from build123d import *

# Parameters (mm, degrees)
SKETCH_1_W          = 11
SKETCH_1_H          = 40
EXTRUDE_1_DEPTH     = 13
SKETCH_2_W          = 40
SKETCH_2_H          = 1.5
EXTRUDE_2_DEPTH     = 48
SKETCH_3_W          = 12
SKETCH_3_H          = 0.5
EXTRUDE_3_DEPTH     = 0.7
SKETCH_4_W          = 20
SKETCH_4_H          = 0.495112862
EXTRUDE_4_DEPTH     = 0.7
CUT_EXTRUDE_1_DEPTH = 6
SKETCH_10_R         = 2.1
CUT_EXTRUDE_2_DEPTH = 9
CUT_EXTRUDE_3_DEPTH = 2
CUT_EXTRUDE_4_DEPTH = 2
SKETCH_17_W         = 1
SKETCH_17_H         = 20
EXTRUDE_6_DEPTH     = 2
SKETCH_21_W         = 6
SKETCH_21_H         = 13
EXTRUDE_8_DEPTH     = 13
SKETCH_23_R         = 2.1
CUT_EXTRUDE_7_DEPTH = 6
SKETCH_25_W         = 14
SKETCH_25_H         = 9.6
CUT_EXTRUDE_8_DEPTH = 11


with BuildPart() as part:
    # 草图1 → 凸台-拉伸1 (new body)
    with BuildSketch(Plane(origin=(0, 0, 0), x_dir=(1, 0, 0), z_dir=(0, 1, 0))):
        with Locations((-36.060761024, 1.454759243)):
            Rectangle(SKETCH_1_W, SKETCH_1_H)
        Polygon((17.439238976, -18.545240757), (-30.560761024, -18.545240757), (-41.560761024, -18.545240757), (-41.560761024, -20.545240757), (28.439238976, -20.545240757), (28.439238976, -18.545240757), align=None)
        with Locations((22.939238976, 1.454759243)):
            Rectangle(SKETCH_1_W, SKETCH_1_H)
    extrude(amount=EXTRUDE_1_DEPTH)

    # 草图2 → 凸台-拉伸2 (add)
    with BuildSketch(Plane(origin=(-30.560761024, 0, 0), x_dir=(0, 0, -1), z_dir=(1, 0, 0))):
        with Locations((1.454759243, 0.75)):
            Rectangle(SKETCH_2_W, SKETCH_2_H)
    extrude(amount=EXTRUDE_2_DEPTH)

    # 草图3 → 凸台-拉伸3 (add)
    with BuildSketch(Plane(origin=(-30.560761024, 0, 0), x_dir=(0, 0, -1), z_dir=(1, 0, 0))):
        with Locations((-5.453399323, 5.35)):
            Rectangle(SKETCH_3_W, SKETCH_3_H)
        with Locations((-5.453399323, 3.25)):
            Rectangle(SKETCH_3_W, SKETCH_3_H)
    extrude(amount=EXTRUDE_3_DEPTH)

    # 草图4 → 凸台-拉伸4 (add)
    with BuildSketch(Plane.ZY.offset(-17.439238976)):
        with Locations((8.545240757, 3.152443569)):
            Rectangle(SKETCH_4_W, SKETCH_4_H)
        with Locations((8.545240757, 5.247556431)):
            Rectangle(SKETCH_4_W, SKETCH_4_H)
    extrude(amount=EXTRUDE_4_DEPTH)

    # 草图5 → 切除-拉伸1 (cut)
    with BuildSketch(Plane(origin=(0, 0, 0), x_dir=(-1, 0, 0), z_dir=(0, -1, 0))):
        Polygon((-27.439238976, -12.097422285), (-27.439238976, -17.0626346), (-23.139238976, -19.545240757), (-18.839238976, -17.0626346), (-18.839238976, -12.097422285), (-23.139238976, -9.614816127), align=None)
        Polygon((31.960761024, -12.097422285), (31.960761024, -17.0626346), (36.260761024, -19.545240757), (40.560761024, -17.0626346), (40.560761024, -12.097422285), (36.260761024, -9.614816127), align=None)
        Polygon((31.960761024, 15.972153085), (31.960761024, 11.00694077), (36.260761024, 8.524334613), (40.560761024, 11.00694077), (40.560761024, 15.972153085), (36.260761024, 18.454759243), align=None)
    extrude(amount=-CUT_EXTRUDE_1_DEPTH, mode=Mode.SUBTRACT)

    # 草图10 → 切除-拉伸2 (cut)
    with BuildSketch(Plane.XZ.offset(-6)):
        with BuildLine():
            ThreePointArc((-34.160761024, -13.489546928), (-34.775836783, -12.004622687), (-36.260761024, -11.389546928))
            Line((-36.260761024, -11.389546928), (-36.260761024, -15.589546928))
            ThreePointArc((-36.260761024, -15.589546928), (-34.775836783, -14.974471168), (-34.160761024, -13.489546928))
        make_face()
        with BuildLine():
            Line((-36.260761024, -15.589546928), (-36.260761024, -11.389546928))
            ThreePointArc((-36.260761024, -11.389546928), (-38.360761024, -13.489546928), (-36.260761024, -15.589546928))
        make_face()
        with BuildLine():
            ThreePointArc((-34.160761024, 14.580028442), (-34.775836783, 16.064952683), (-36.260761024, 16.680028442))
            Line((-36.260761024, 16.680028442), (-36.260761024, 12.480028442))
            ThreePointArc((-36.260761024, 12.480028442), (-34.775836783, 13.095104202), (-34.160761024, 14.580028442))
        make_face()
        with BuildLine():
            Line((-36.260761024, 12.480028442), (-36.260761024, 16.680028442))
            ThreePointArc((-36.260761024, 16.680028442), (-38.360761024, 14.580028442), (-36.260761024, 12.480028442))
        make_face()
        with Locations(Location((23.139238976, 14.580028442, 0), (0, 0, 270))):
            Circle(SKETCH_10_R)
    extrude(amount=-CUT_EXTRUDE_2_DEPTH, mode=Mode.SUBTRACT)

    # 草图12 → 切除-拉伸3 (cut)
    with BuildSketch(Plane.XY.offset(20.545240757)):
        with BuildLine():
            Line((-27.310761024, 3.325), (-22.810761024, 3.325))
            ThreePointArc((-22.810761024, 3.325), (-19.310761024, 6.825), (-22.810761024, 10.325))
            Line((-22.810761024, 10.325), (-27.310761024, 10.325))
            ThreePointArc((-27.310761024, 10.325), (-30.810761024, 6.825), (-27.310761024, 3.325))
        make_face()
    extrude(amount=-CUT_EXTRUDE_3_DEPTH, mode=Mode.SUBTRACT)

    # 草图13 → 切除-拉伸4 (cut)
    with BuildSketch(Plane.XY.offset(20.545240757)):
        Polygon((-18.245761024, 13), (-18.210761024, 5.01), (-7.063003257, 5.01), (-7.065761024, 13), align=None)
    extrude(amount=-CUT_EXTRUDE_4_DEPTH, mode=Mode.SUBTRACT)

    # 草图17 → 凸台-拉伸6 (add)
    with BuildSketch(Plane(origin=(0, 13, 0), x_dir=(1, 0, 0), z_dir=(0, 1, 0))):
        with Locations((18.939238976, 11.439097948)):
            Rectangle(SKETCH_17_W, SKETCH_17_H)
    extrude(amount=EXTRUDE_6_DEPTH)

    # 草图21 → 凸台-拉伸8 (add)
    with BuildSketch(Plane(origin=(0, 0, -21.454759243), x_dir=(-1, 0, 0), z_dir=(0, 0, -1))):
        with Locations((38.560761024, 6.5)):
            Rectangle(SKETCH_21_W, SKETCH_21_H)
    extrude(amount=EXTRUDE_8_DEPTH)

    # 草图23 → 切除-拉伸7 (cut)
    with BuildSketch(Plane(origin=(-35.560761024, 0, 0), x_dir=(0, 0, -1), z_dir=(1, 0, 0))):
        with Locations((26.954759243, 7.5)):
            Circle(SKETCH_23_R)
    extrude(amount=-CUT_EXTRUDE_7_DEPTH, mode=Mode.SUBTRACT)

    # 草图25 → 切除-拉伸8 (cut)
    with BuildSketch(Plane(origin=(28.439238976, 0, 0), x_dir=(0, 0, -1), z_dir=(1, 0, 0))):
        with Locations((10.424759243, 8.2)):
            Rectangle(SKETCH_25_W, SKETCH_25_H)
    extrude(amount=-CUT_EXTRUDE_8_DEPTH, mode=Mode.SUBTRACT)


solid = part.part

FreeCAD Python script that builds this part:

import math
import FreeCAD as App
import Part
import Sketcher

V = App.Vector
Q = App.Units.Quantity

doc = App.newDocument("Part")
body = doc.addObject("PartDesign::Body", "Body")

# Sketch on XZ plane
sketch1 = body.newObject("Sketcher::SketchObject", "Sketch")
sketch1.AttachmentSupport = (doc.getObject("XZ_Plane"), [""])
sketch1.MapMode = "FlatFace"
sketch1.addGeometry([
    Part.LineSegment(V(-42, -21, 0), V(-42, 21, 0)),  # 0
    Part.LineSegment(V(-42, 21, 0), V(28, 21, 0)),  # 1
    Part.LineSegment(V(28, 21, 0), V(28, -21, 0)),  # 2
    Part.LineSegment(V(28, -21, 0), V(17, -21, 0)),  # 3
    Part.LineSegment(V(17, -21, 0), V(17, 19, 0)),  # 4
    Part.LineSegment(V(17, 19, 0), V(-31, 19, 0)),  # 5
    Part.LineSegment(V(-31, 19, 0), V(-31, -21, 0)),  # 6
    Part.LineSegment(V(-31, -21, 0), V(-42, -21, 0)),  # 7
], False)
sketch1.addConstraint([
    Sketcher.Constraint("Coincident", 0, 2, 1, 1),
    Sketcher.Constraint("Coincident", 1, 2, 2, 1),
    Sketcher.Constraint("Coincident", 2, 2, 3, 1),
    Sketcher.Constraint("Coincident", 3, 2, 4, 1),
    Sketcher.Constraint("Coincident", 4, 2, 5, 1),
    Sketcher.Constraint("Coincident", 5, 2, 6, 1),
    Sketcher.Constraint("Coincident", 6, 2, 7, 1),
    Sketcher.Constraint("Coincident", 7, 2, 0, 1),
    Sketcher.Constraint("Vertical", 0),
    Sketcher.Constraint("Horizontal", 1),
    Sketcher.Constraint("Vertical", 2),
    Sketcher.Constraint("Horizontal", 3),
    Sketcher.Constraint("Vertical", 4),
    Sketcher.Constraint("Horizontal", 5),
    Sketcher.Constraint("Vertical", 6),
    Sketcher.Constraint("Horizontal", 7),
    Sketcher.Constraint("Horizontal", 3, 2, 6, 2),
    Sketcher.Constraint("Equal", 3, 7),
    Sketcher.Constraint("DistanceX", 1, 1, 1, 2, Q("70 mm")),
    Sketcher.Constraint("DistanceX", 3, 2, 3, 1, Q("11 mm")),
    Sketcher.Constraint("DistanceY", 0, 1, 0, 2, Q("42 mm")),
    Sketcher.Constraint("DistanceY", 4, 1, 4, 2, Q("40 mm")),
    Sketcher.Constraint("DistanceX", 0, 2, -1, 1, Q("41.560761 mm")),
    Sketcher.Constraint("DistanceY", -1, 1, 0, 2, Q("20.545241 mm")),
])
pad1 = body.newObject("PartDesign::Pad", "Pad")
pad1.Profile = sketch1
pad1.Length = 13
pad1.Reversed = True

# Sketch on YZ plane
sketch2 = body.newObject("Sketcher::SketchObject", "Sketch001")
sketch2.AttachmentSupport = (doc.getObject("YZ_Plane"), [""])
sketch2.MapMode = "FlatFace"
sketch2.AttachmentOffset = App.Placement(V(0, 0, -30.560761), App.Rotation())
sketch2.addGeometry([
    Part.LineSegment(V(1.5, 18.5, 0), V(0, 18.5, 0)),
    Part.LineSegment(V(0, 18.5, 0), V(0, -21.5, 0)),
    Part.LineSegment(V(0, -21.5, 0), V(1.5, -21.5, 0)),
    Part.LineSegment(V(1.5, -21.5, 0), V(1.5, 18.5, 0)),
], False)
sketch2.addConstraint([
    Sketcher.Constraint("Coincident", 0, 2, 1, 1),
    Sketcher.Constraint("Coincident", 1, 2, 2, 1),
    Sketcher.Constraint("Coincident", 2, 2, 3, 1),
    Sketcher.Constraint("Coincident", 3, 2, 0, 1),
    Sketcher.Constraint("Horizontal", 0),
    Sketcher.Constraint("Vertical", 1),
    Sketcher.Constraint("Horizontal", 2),
    Sketcher.Constraint("Vertical", 3),
    Sketcher.Constraint("PointOnObject", 0, 2, -2),
    Sketcher.Constraint("DistanceY", 1, 2, 1, 1, Q("40 mm")),
    Sketcher.Constraint("DistanceX", 0, 2, 0, 1, Q("1.5 mm")),
    Sketcher.Constraint("DistanceY", -1, 1, 0, 2, Q("18.545241 mm")),
])
pad2 = body.newObject("PartDesign::Pad", "Pad001")
pad2.Profile = sketch2
pad2.Length = 48

# Sketch on YZ plane
sketch3 = body.newObject("Sketcher::SketchObject", "Sketch002")
sketch3.AttachmentSupport = (doc.getObject("YZ_Plane"), [""])
sketch3.MapMode = "FlatFace"
sketch3.AttachmentOffset = App.Placement(V(0, 0, -30.560761), App.Rotation())
sketch3.addGeometry([
    Part.LineSegment(V(5.6, 11.5, 0), V(5.1, 11.5, 0)),  # 0
    Part.LineSegment(V(5.1, 11.5, 0), V(5.1, -0.5, 0)),  # 1
    Part.LineSegment(V(5.1, -0.5, 0), V(5.6, -0.5, 0)),  # 2
    Part.LineSegment(V(5.6, -0.5, 0), V(5.6, 11.5, 0)),  # 3
    Part.LineSegment(V(3.5, 11.5, 0), V(3, 11.5, 0)),  # 4
    Part.LineSegment(V(3, 11.5, 0), V(3, -0.5, 0)),  # 5
    Part.LineSegment(V(3, -0.5, 0), V(3.5, -0.5, 0)),  # 6
    Part.LineSegment(V(3.5, -0.5, 0), V(3.5, 11.5, 0)),  # 7
], False)
sketch3.addConstraint([
    Sketcher.Constraint("Coincident", 0, 2, 1, 1),
    Sketcher.Constraint("Coincident", 1, 2, 2, 1),
    Sketcher.Constraint("Coincident", 2, 2, 3, 1),
    Sketcher.Constraint("Coincident", 3, 2, 0, 1),
    Sketcher.Constraint("Coincident", 4, 2, 5, 1),
    Sketcher.Constraint("Coincident", 5, 2, 6, 1),
    Sketcher.Constraint("Coincident", 6, 2, 7, 1),
    Sketcher.Constraint("Coincident", 7, 2, 4, 1),
    Sketcher.Constraint("Horizontal", 0),
    Sketcher.Constraint("Vertical", 1),
    Sketcher.Constraint("Horizontal", 2),
    Sketcher.Constraint("Vertical", 3),
    Sketcher.Constraint("Horizontal", 4),
    Sketcher.Constraint("Vertical", 5),
    Sketcher.Constraint("Horizontal", 6),
    Sketcher.Constraint("Vertical", 7),
    Sketcher.Constraint("Horizontal", 3, 2, 4, 2),
    Sketcher.Constraint("Horizontal", 2, 2, 5, 2),
    Sketcher.Constraint("Equal", 2, 4),
    Sketcher.Constraint("DistanceY", 1, 2, 1, 1, Q("12 mm")),
    Sketcher.Constraint("DistanceX", 0, 2, 0, 1, Q("0.5 mm")),
    Sketcher.Constraint("DistanceX", -1, 1, 4, 2, Q("3 mm")),
    Sketcher.Constraint("DistanceX", -1, 1, 0, 2, Q("5.1 mm")),
    Sketcher.Constraint("DistanceY", -1, 1, 0, 2, Q("11.453399 mm")),
])
pad3 = body.newObject("PartDesign::Pad", "Pad002")
pad3.Profile = sketch3
pad3.Length = 0.7

# Sketch on YZ plane
sketch4 = body.newObject("Sketcher::SketchObject", "Sketch003")
sketch4.AttachmentSupport = (doc.getObject("YZ_Plane"), [""])
sketch4.MapMode = "FlatFace"
sketch4.AttachmentOffset = App.Placement(V(0, 0, 17.439239), App.Rotation())
sketch4.addGeometry([
    Part.LineSegment(V(3.4, -1.45, 0), V(2.9, -1.45, 0)),  # 0
    Part.LineSegment(V(2.9, -1.45, 0), V(2.9, 18.55, 0)),  # 1
    Part.LineSegment(V(2.9, 18.55, 0), V(3.4, 18.55, 0)),  # 2
    Part.LineSegment(V(3.4, 18.55, 0), V(3.4, -1.45, 0)),  # 3
    Part.LineSegment(V(5.5, -1.45, 0), V(5, -1.45, 0)),  # 4
    Part.LineSegment(V(5, -1.45, 0), V(5, 18.55, 0)),  # 5
    Part.LineSegment(V(5, 18.55, 0), V(5.5, 18.55, 0)),  # 6
    Part.LineSegment(V(5.5, 18.55, 0), V(5.5, -1.45, 0)),  # 7
], False)
sketch4.addConstraint([
    Sketcher.Constraint("Coincident", 0, 2, 1, 1),
    Sketcher.Constraint("Coincident", 1, 2, 2, 1),
    Sketcher.Constraint("Coincident", 2, 2, 3, 1),
    Sketcher.Constraint("Coincident", 3, 2, 0, 1),
    Sketcher.Constraint("Coincident", 4, 2, 5, 1),
    Sketcher.Constraint("Coincident", 5, 2, 6, 1),
    Sketcher.Constraint("Coincident", 6, 2, 7, 1),
    Sketcher.Constraint("Coincident", 7, 2, 4, 1),
    Sketcher.Constraint("Horizontal", 0),
    Sketcher.Constraint("Vertical", 1),
    Sketcher.Constraint("Horizontal", 2),
    Sketcher.Constraint("Vertical", 3),
    Sketcher.Constraint("Horizontal", 4),
    Sketcher.Constraint("Vertical", 5),
    Sketcher.Constraint("Horizontal", 6),
    Sketcher.Constraint("Vertical", 7),
    Sketcher.Constraint("Horizontal", 3, 2, 4, 2),
    Sketcher.Constraint("Horizontal", 2, 2, 5, 2),
    Sketcher.Constraint("Equal", 2, 4),
    Sketcher.Constraint("DistanceY", 1, 1, 1, 2, Q("20 mm")),
    Sketcher.Constraint("DistanceX", -1, 1, 4, 2, Q("5 mm")),
    Sketcher.Constraint("DistanceX", -1, 1, 2, 2, Q("3.4 mm")),
    Sketcher.Constraint("DistanceX", 0, 2, 0, 1, Q("0.495113 mm")),
    Sketcher.Constraint("DistanceY", 0, 2, -1, 1, Q("1.454759 mm")),
])
pad4 = body.newObject("PartDesign::Pad", "Pad003")
pad4.Profile = sketch4
pad4.Length = 0.7
pad4.Reversed = True

# Sketch on XZ plane
sketch5 = body.newObject("Sketcher::SketchObject", "Sketch004")
sketch5.AttachmentSupport = (doc.getObject("XZ_Plane"), [""])
sketch5.MapMode = "FlatFace"
sketch5.addGeometry([
    Part.LineSegment(V(27.4, 12.1, 0), V(27.4, 17.1, 0)),  # 0
    Part.LineSegment(V(27.4, 17.1, 0), V(23.1, 19.5, 0)),  # 1
    Part.LineSegment(V(23.1, 19.5, 0), V(18.8, 17.1, 0)),  # 2
    Part.LineSegment(V(18.8, 17.1, 0), V(18.8, 12.1, 0)),  # 3
    Part.LineSegment(V(18.8, 12.1, 0), V(23.1, 9.6, 0)),  # 4
    Part.LineSegment(V(23.1, 9.6, 0), V(27.4, 12.1, 0)),  # 5
    Part.LineSegment(V(-32, 12.1, 0), V(-32, 17.1, 0)),  # 6
    Part.LineSegment(V(-32, 17.1, 0), V(-36.3, 19.5, 0)),  # 7
    Part.LineSegment(V(-36.3, 19.5, 0), V(-40.6, 17.1, 0)),  # 8
    Part.LineSegment(V(-40.6, 17.1, 0), V(-40.6, 12.1, 0)),  # 9
    Part.LineSegment(V(-40.6, 12.1, 0), V(-36.3, 9.6, 0)),  # 10
    Part.LineSegment(V(-36.3, 9.6, 0), V(-32, 12.1, 0)),  # 11
    Part.LineSegment(V(-32, -16, 0), V(-32, -11, 0)),  # 12
    Part.LineSegment(V(-32, -11, 0), V(-36.3, -8.5, 0)),  # 13
    Part.LineSegment(V(-36.3, -8.5, 0), V(-40.6, -11, 0)),  # 14
    Part.LineSegment(V(-40.6, -11, 0), V(-40.6, -16, 0)),  # 15
    Part.LineSegment(V(-40.6, -16, 0), V(-36.3, -18.5, 0)),  # 16
    Part.LineSegment(V(-36.3, -18.5, 0), V(-32, -16, 0)),  # 17
], False)
sketch5.addConstraint([
    Sketcher.Constraint("Coincident", 0, 2, 1, 1),
    Sketcher.Constraint("Coincident", 1, 2, 2, 1),
    Sketcher.Constraint("Coincident", 2, 2, 3, 1),
    Sketcher.Constraint("Coincident", 3, 2, 4, 1),
    Sketcher.Constraint("Coincident", 4, 2, 5, 1),
    Sketcher.Constraint("Coincident", 5, 2, 0, 1),
    Sketcher.Constraint("Coincident", 6, 2, 7, 1),
    Sketcher.Constraint("Coincident", 7, 2, 8, 1),
    Sketcher.Constraint("Coincident", 8, 2, 9, 1),
    Sketcher.Constraint("Coincident", 9, 2, 10, 1),
    Sketcher.Constraint("Coincident", 10, 2, 11, 1),
    Sketcher.Constraint("Coincident", 11, 2, 6, 1),
    Sketcher.Constraint("Coincident", 12, 2, 13, 1),
    Sketcher.Constraint("Coincident", 13, 2, 14, 1),
    Sketcher.Constraint("Coincident", 14, 2, 15, 1),
    Sketcher.Constraint("Coincident", 15, 2, 16, 1),
    Sketcher.Constraint("Coincident", 16, 2, 17, 1),
    Sketcher.Constraint("Coincident", 17, 2, 12, 1),
    Sketcher.Constraint("Vertical", 0),
    Sketcher.Constraint("Vertical", 3),
    Sketcher.Constraint("Vertical", 6),
    Sketcher.Constraint("Vertical", 9),
    Sketcher.Constraint("Vertical", 12),
    Sketcher.Constraint("Vertical", 15),
    Sketcher.Constraint("Parallel", 1, 4),
    Sketcher.Constraint("Parallel", 2, 5),
    Sketcher.Constraint("Parallel", 4, 7),
    Sketcher.Constraint("Parallel", 5, 8),
    Sketcher.Constraint("Parallel", 7, 10),
    Sketcher.Constraint("Parallel", 8, 11),
    Sketcher.Constraint("Parallel", 10, 13),
    Sketcher.Constraint("Parallel", 11, 14),
    Sketcher.Constraint("Parallel", 13, 16),
    Sketcher.Constraint("Parallel", 14, 17),
    Sketcher.Constraint("Horizontal", 0, 2, 2, 2),
    Sketcher.Constraint("Horizontal", 3, 2, 5, 2),
    Sketcher.Constraint("Horizontal", 2, 2, 6, 2),
    Sketcher.Constraint("Horizontal", 1, 2, 7, 2),
    Sketcher.Constraint("Horizontal", 6, 2, 8, 2),
    Sketcher.Constraint("Horizontal", 5, 2, 9, 2),
    Sketcher.Constraint("Horizontal", 4, 2, 10, 2),
    Sketcher.Constraint("Horizontal", 12, 2, 14, 2),
    Sketcher.Constraint("Horizontal", 15, 2, 17, 2),
    Sketcher.Constraint("Vertical", 1, 2, 4, 2),
    Sketcher.Constraint("Vertical", 11, 2, 12, 2),
    Sketcher.Constraint("Vertical", 10, 2, 13, 2),
    Sketcher.Constraint("Equal", 9, 12),
    Sketcher.Constraint("Angle", 1, Q("150 deg")),
    Sketcher.Constraint("DistanceX", 1, 2, 0, 2, Q("4.3 mm")),
    Sketcher.Constraint("DistanceX", 6, 2, 2, 2, Q("50.8 mm")),
    Sketcher.Constraint("DistanceY", 0, 1, 0, 2, Q("4.965212 mm")),
    Sketcher.Constraint("DistanceX", -1, 1, 0, 2, Q("27.439239 mm")),
    Sketcher.Constraint("DistanceY", -1, 1, 1, 2, Q("19.545241 mm")),
    Sketcher.Constraint("DistanceY", 12, 2, -1, 1, Q("11.006941 mm")),
])
pocket1 = body.newObject("PartDesign::Pocket", "Pocket")
pocket1.Profile = sketch5
pocket1.Length = 6

# Sketch on XZ plane
sketch6 = body.newObject("Sketcher::SketchObject", "Sketch005")
sketch6.AttachmentSupport = (doc.getObject("XZ_Plane"), [""])
sketch6.MapMode = "FlatFace"
sketch6.AttachmentOffset = App.Placement(V(0, 0, -6), App.Rotation())
sketch6.addGeometry([
    Part.ArcOfCircle(Part.Circle(V(-36.3, -13.5, 0), V(0, 0, 1), 2.1), math.radians(0), math.radians(90)),  # 0
    Part.ArcOfCircle(Part.Circle(V(-36.3, -13.5, 0), V(0, 0, 1), 2.1), math.radians(90), math.radians(270)),  # 1
    Part.ArcOfCircle(Part.Circle(V(-36.3, -13.5, 0), V(0, 0, 1), 2.1), math.radians(-90), math.radians(0)),  # 2
    Part.ArcOfCircle(Part.Circle(V(-36.3, 14.6, 0), V(0, 0, 1), 2.1), math.radians(0), math.radians(90)),  # 3
    Part.ArcOfCircle(Part.Circle(V(-36.3, 14.6, 0), V(0, 0, 1), 2.1), math.radians(90), math.radians(270)),  # 4
    Part.ArcOfCircle(Part.Circle(V(-36.3, 14.6, 0), V(0, 0, 1), 2.1), math.radians(-90), math.radians(0)),  # 5
    Part.Circle(V(23.1, 14.6, 0), V(0, 0, 1), 2.1),  # 6
], False)
sketch6.addConstraint([
    Sketcher.Constraint("Tangent", 0, 2, 1, 1),
    Sketcher.Constraint("Tangent", 1, 2, 2, 1),
    Sketcher.Constraint("Tangent", 2, 2, 0, 1),
    Sketcher.Constraint("Tangent", 3, 2, 4, 1),
    Sketcher.Constraint("Tangent", 4, 2, 5, 1),
    Sketcher.Constraint("Tangent", 5, 2, 3, 1),
    Sketcher.Constraint("Equal", 2, 3),
    Sketcher.Constraint("Equal", 5, 6),
    Sketcher.Constraint("Horizontal", 5, 3, 6, 3),
    Sketcher.Constraint("Horizontal", 1, 3, 2, 2),
    Sketcher.Constraint("Horizontal", 6, 3, 5, 2),
    Sketcher.Constraint("Vertical", 2, 3, 3, 3),
    Sketcher.Constraint("Vertical", 5, 3, 0, 2),
    Sketcher.Constraint("Vertical", 0, 2, 1, 2),
    Sketcher.Constraint("Vertical", 1, 2, 3, 2),
    Sketcher.Constraint("Vertical", 3, 2, 4, 2),
    Sketcher.Constraint("Diameter", 6, Q("4.2 mm")),
    Sketcher.Constraint("DistanceX", 3, 3, 6, 3, Q("59.4 mm")),
    Sketcher.Constraint("DistanceX", 0, 3, -1, 1, Q("36.260761 mm")),
    Sketcher.Constraint("DistanceY", -1, 1, 3, 3, Q("14.580028 mm")),
    Sketcher.Constraint("DistanceY", 0, 3, -1, 1, Q("13.489547 mm")),
])
pocket2 = body.newObject("PartDesign::Pocket", "Pocket001")
pocket2.Profile = sketch6
pocket2.Length = 9

# Sketch on XY plane
sketch7 = body.newObject("Sketcher::SketchObject", "Sketch006")
sketch7.AttachmentSupport = (doc.getObject("XY_Plane"), [""])
sketch7.MapMode = "FlatFace"
sketch7.AttachmentOffset = App.Placement(V(0, 0, 20.545241), App.Rotation())
sketch7.addGeometry([
    Part.LineSegment(V(-27.3, 3.3, 0), V(-22.8, 3.3, 0)),
    Part.ArcOfCircle(Part.Circle(V(-22.8, 6.8, 0), V(0, 0, 1), 3.5), math.radians(-90), math.radians(90)),
    Part.LineSegment(V(-22.8, 10.3, 0), V(-27.3, 10.3, 0)),
    Part.ArcOfCircle(Part.Circle(V(-27.3, 6.8, 0), V(0, 0, 1), 3.5), math.radians(90), math.radians(270)),
], False)
sketch7.addConstraint([
    Sketcher.Constraint("Tangent", 0, 2, 1, 1),
    Sketcher.Constraint("Tangent", 1, 2, 2, 1),
    Sketcher.Constraint("Tangent", 2, 2, 3, 1),
    Sketcher.Constraint("Tangent", 3, 2, 0, 1),
    Sketcher.Constraint("Horizontal", 0),
    Sketcher.Constraint("Horizontal", 2),
    Sketcher.Constraint("Radius", 1, Q("3.5 mm")),
    Sketcher.Constraint("DistanceX", 0, 1, 0, 2, Q("4.5 mm")),
    Sketcher.Constraint("DistanceY", -1, 1, 1, 3, Q("6.825 mm")),
    Sketcher.Constraint("DistanceX", 1, 3, -1, 1, Q("22.810761 mm")),
])
pocket3 = body.newObject("PartDesign::Pocket", "Pocket002")
pocket3.Profile = sketch7
pocket3.Length = 2

# Sketch on XY plane
sketch8 = body.newObject("Sketcher::SketchObject", "Sketch007")
sketch8.AttachmentSupport = (doc.getObject("XY_Plane"), [""])
sketch8.MapMode = "FlatFace"
sketch8.AttachmentOffset = App.Placement(V(0, 0, 20.545241), App.Rotation())
sketch8.addGeometry([
    Part.LineSegment(V(-18, 13, 0), V(-18, 5, 0)),
    Part.LineSegment(V(-18, 5, 0), V(-7, 5, 0)),
    Part.LineSegment(V(-7, 5, 0), V(-7, 13, 0)),
    Part.LineSegment(V(-7, 13, 0), V(-18, 13, 0)),
], False)
sketch8.addConstraint([
    Sketcher.Constraint("Coincident", 0, 2, 1, 1),
    Sketcher.Constraint("Coincident", 1, 2, 2, 1),
    Sketcher.Constraint("Coincident", 2, 2, 3, 1),
    Sketcher.Constraint("Coincident", 3, 2, 0, 1),
    Sketcher.Constraint("Horizontal", 1),
    Sketcher.Constraint("Horizontal", 3),
    Sketcher.Constraint("DistanceY", -1, 1, 2, 2, Q("13 mm")),
    Sketcher.Constraint("DistanceX", 3, 2, 3, 1, Q("11.18 mm")),
    Sketcher.Constraint("Distance", 2, Q("7.99 mm")),
    Sketcher.Constraint("DistanceX", 0, 2, 2, 2, Q("11.145 mm")),
    Sketcher.Constraint("DistanceX", 1, 1, 1, 2, Q("11.147758 mm")),
    Sketcher.Constraint("DistanceX", 0, 2, -1, 1, Q("18.210761 mm")),
])
pocket4 = body.newObject("PartDesign::Pocket", "Pocket003")
pocket4.Profile = sketch8
pocket4.Length = 2

# Sketch on XZ plane
sketch9 = body.newObject("Sketcher::SketchObject", "Sketch008")
sketch9.AttachmentSupport = (doc.getObject("XZ_Plane"), [""])
sketch9.MapMode = "FlatFace"
sketch9.AttachmentOffset = App.Placement(V(0, 0, -13), App.Rotation())
sketch9.addGeometry([
    Part.LineSegment(V(18.4, -21.4, 0), V(18.4, -1.4, 0)),
    Part.LineSegment(V(18.4, -1.4, 0), V(19.4, -1.4, 0)),
    Part.LineSegment(V(19.4, -1.4, 0), V(19.4, -21.4, 0)),
    Part.LineSegment(V(19.4, -21.4, 0), V(18.4, -21.4, 0)),
], False)
sketch9.addConstraint([
    Sketcher.Constraint("Coincident", 0, 2, 1, 1),
    Sketcher.Constraint("Coincident", 1, 2, 2, 1),
    Sketcher.Constraint("Coincident", 2, 2, 3, 1),
    Sketcher.Constraint("Coincident", 3, 2, 0, 1),
    Sketcher.Constraint("Vertical", 0),
    Sketcher.Constraint("Horizontal", 1),
    Sketcher.Constraint("Vertical", 2),
    Sketcher.Constraint("Horizontal", 3),
    Sketcher.Constraint("DistanceX", 1, 1, 1, 2, Q("1 mm")),
    Sketcher.Constraint("DistanceY", 0, 1, 0, 2, Q("20 mm")),
    Sketcher.Constraint("DistanceX", -1, 1, 0, 2, Q("18.439239 mm")),
    Sketcher.Constraint("DistanceY", 0, 2, -1, 1, Q("1.439098 mm")),
])
pad5 = body.newObject("PartDesign::Pad", "Pad004")
pad5.Profile = sketch9
pad5.Length = 2
pad5.Reversed = True

# Sketch on XY plane
sketch10 = body.newObject("Sketcher::SketchObject", "Sketch009")
sketch10.AttachmentSupport = (doc.getObject("XY_Plane"), [""])
sketch10.MapMode = "FlatFace"
sketch10.AttachmentOffset = App.Placement(V(0, 0, -21.454759), App.Rotation())
sketch10.addGeometry([
    Part.LineSegment(V(-36, 13, 0), V(-36, 0, 0)),
    Part.LineSegment(V(-36, 0, 0), V(-42, 0, 0)),
    Part.LineSegment(V(-42, 0, 0), V(-42, 13, 0)),
    Part.LineSegment(V(-42, 13, 0), V(-36, 13, 0)),
], False)
sketch10.addConstraint([
    Sketcher.Constraint("Coincident", 0, 2, 1, 1),
    Sketcher.Constraint("Coincident", 1, 2, 2, 1),
    Sketcher.Constraint("Coincident", 2, 2, 3, 1),
    Sketcher.Constraint("Coincident", 3, 2, 0, 1),
    Sketcher.Constraint("Vertical", 0),
    Sketcher.Constraint("Horizontal", 1),
    Sketcher.Constraint("Vertical", 2),
    Sketcher.Constraint("Horizontal", 3),
    Sketcher.Constraint("PointOnObject", 0, 2, -1),
    Sketcher.Constraint("DistanceX", 1, 2, 1, 1, Q("6 mm")),
    Sketcher.Constraint("DistanceY", 0, 2, 0, 1, Q("13 mm")),
    Sketcher.Constraint("DistanceX", 0, 2, -1, 1, Q("35.560761 mm")),
])
pad6 = body.newObject("PartDesign::Pad", "Pad005")
pad6.Profile = sketch10
pad6.Length = 13
pad6.Reversed = True

# Sketch on YZ plane
sketch11 = body.newObject("Sketcher::SketchObject", "Sketch010")
sketch11.AttachmentSupport = (doc.getObject("YZ_Plane"), [""])
sketch11.MapMode = "FlatFace"
sketch11.AttachmentOffset = App.Placement(V(0, 0, -35.560761), App.Rotation())
sketch11.addGeometry(Part.Circle(V(7.5, -27, 0), V(0, 0, 1), 2.1), False)
sketch11.addConstraint([
    Sketcher.Constraint("Diameter", 0, Q("4.2 mm")),
    Sketcher.Constraint("DistanceX", -1, 1, 0, 3, Q("7.5 mm")),
    Sketcher.Constraint("DistanceY", 0, 3, -1, 1, Q("26.954759 mm")),
])
pocket5 = body.newObject("PartDesign::Pocket", "Pocket004")
pocket5.Profile = sketch11
pocket5.Length = 6

# Sketch on YZ plane
sketch12 = body.newObject("Sketcher::SketchObject", "Sketch011")
sketch12.AttachmentSupport = (doc.getObject("YZ_Plane"), [""])
sketch12.MapMode = "FlatFace"
sketch12.AttachmentOffset = App.Placement(V(0, 0, 28.439239), App.Rotation())
sketch12.addGeometry([
    Part.LineSegment(V(13, -3, 0), V(3, -3, 0)),
    Part.LineSegment(V(3, -3, 0), V(3, -17, 0)),
    Part.LineSegment(V(3, -17, 0), V(13, -17, 0)),
    Part.LineSegment(V(13, -17, 0), V(13, -3, 0)),
], False)
sketch12.addConstraint([
    Sketcher.Constraint("Coincident", 0, 2, 1, 1),
    Sketcher.Constraint("Coincident", 1, 2, 2, 1),
    Sketcher.Constraint("Coincident", 2, 2, 3, 1),
    Sketcher.Constraint("Coincident", 3, 2, 0, 1),
    Sketcher.Constraint("Horizontal", 0),
    Sketcher.Constraint("Vertical", 1),
    Sketcher.Constraint("Horizontal", 2),
    Sketcher.Constraint("Vertical", 3),
    Sketcher.Constraint("DistanceY", 1, 2, 1, 1, Q("14 mm")),
    Sketcher.Constraint("DistanceX", 0, 2, 0, 1, Q("9.6 mm")),
    Sketcher.Constraint("DistanceX", -1, 1, 2, 2, Q("13 mm")),
    Sketcher.Constraint("DistanceY", 0, 2, -1, 1, Q("3.424759 mm")),
])
pocket6 = body.newObject("PartDesign::Pocket", "Pocket005")
pocket6.Profile = sketch12
pocket6.Length = 11

doc.recompute()
